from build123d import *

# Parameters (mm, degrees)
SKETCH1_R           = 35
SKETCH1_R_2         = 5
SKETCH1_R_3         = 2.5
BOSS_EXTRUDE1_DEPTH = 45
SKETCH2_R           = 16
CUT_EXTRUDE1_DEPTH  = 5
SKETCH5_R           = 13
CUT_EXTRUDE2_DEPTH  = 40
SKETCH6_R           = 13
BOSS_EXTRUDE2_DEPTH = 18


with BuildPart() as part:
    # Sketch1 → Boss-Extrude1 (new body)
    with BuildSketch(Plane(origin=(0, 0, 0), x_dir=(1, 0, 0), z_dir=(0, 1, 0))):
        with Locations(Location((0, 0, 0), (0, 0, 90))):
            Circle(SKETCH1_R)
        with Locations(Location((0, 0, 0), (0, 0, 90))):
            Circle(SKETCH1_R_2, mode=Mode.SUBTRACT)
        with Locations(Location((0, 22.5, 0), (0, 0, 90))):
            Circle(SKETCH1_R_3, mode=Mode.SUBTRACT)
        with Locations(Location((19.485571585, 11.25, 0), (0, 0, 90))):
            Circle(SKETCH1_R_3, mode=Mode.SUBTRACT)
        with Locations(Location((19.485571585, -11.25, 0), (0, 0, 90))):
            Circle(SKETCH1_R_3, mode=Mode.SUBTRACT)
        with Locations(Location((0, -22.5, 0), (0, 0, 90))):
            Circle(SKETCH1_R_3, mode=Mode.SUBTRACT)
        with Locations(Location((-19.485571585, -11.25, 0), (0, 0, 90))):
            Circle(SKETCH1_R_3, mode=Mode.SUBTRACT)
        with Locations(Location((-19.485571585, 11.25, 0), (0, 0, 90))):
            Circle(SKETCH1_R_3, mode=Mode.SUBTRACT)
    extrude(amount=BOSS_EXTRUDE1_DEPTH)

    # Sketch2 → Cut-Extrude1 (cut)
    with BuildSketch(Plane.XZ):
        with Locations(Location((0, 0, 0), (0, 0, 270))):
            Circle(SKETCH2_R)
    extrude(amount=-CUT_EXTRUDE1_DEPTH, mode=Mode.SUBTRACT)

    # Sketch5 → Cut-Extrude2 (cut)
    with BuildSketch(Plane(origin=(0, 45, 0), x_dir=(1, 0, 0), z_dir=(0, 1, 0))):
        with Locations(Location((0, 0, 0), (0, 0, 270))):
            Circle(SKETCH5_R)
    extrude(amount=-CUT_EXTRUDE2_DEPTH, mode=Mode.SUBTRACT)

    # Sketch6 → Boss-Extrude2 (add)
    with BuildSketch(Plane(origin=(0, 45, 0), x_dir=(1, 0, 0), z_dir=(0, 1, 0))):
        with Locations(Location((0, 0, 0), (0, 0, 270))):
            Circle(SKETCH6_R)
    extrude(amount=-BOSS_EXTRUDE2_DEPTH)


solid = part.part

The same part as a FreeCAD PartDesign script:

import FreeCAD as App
import Part
import Sketcher

V = App.Vector
Q = App.Units.Quantity

doc = App.newDocument("Part")
params = doc.addObject("Spreadsheet::Sheet", "Params")
for row, (alias, value) in enumerate([
    ("sketch1_diameter", "70 mm"),
    ("sketch1_diameter2", "5 mm"),
    ("sketch1_diameter3", "10 mm"),
    ("pad1_length", "45 mm"),
    ("sketch2_diameter", "32 mm"),
    ("pocket1_length", "5 mm"),
    ("sketch3_diameter", "26 mm"),
    ("pocket2_length", "40 mm"),
    ("sketch4_diameter", "26 mm"),
    ("pad2_length", "18 mm"),
], start=1):
    params.set(f"A{row}", alias)
    params.set(f"B{row}", "=" + value)
    params.setAlias(f"B{row}", alias)

body = doc.addObject("PartDesign::Body", "Body")

# Sketch on XZ plane
sketch1 = doc.addObject("Sketcher::SketchObject", "Sketch")
body.addObject(sketch1)
sketch1.AttachmentSupport = (doc.XZ_Plane, [""])
sketch1.MapMode = "FlatFace"
sketch1.addGeometry([
    Part.Circle(V(0, 0, 0), V(0, 0, 1), 35),  # 0
    Part.Circle(V(19.5, 11.2, 0), V(0, 0, 1), 2.5),  # 1
    Part.Circle(V(0, 22.5, 0), V(0, 0, 1), 2.5),  # 2
    Part.Circle(V(19.5, -11.2, 0), V(0, 0, 1), 2.5),  # 3
    Part.Circle(V(-19.5, 11.2, 0), V(0, 0, 1), 2.5),  # 4
    Part.Circle(V(0, 0, 0), V(0, 0, 1), 5),  # 5
    Part.Circle(V(0, -22.5, 0), V(0, 0, 1), 2.5),  # 6
    Part.Circle(V(-19.5, -11.2, 0), V(0, 0, 1), 2.5),  # 7
], False)
sketch1.addConstraint([
    Sketcher.Constraint("Coincident", 0, 3, -1, 1),
    Sketcher.Constraint("Coincident", 5, 3, -1, 1),
    Sketcher.Constraint("Equal", 1, 2),
    Sketcher.Constraint("Equal", 2, 3),
    Sketcher.Constraint("Equal", 3, 4),
    Sketcher.Constraint("Equal", 4, 6),
    Sketcher.Constraint("Equal", 6, 7),
    Sketcher.Constraint("Symmetric", 3, 3, 4, 3, -1, 1),
    Sketcher.Constraint("Symmetric", 2, 3, 6, 3, -1, 1),
    Sketcher.Constraint("Symmetric", 1, 3, 7, 3, -1, 1),
    Sketcher.Constraint("Symmetric", 1, 3, 4, 3, -2),
    Sketcher.Constraint("PointOnObject", 2, 3, -2),
    Sketcher.Constraint("Diameter", 0, Q("70 mm")),
    Sketcher.Constraint("Diameter", 1, Q("5 mm")),
    Sketcher.Constraint("Diameter", 5, Q("10 mm")),
    Sketcher.Constraint("DistanceY", -1, 1, 2, 3, Q("22.5 mm")),
    Sketcher.Constraint("DistanceY", 3, 3, 1, 3, Q("22.5 mm")),
    Sketcher.Constraint("DistanceX", -1, 1, 1, 3, Q("19.485572 mm")),
])
sketch1.setExpression("Constraints[12]", "Params.sketch1_diameter")
sketch1.setExpression("Constraints[13]", "Params.sketch1_diameter2")
sketch1.setExpression("Constraints[14]", "Params.sketch1_diameter3")
pad1 = doc.addObject("PartDesign::Pad", "Pad")
body.addObject(pad1)
pad1.Profile = sketch1
pad1.setExpression("Length", "Params.pad1_length")
pad1.Reversed = True

# Sketch on XZ plane
sketch2 = doc.addObject("Sketcher::SketchObject", "Sketch001")
body.addObject(sketch2)
sketch2.AttachmentSupport = (doc.XZ_Plane, [""])
sketch2.MapMode = "FlatFace"
sketch2.addGeometry(Part.Circle(V(0, 0, 0), V(0, 0, 1), 16), False)
sketch2.addConstraint([
    Sketcher.Constraint("Coincident", 0, 3, -1, 1),
    Sketcher.Constraint("Diameter", 0, Q("32 mm")),
])
sketch2.setExpression("Constraints[1]", "Params.sketch2_diameter")
pocket1 = doc.addObject("PartDesign::Pocket", "Pocket")
body.addObject(pocket1)
pocket1.Profile = sketch2
pocket1.setExpression("Length", "Params.pocket1_length")

# Sketch on XZ plane
sketch3 = doc.addObject("Sketcher::SketchObject", "Sketch002")
body.addObject(sketch3)
sketch3.AttachmentSupport = (doc.XZ_Plane, [""])
sketch3.MapMode = "FlatFace"
sketch3.AttachmentOffset = App.Placement(V(0, 0, -45), App.Rotation())
sketch3.addGeometry(Part.Circle(V(0, 0, 0), V(0, 0, 1), 13), False)
sketch3.addConstraint([
    Sketcher.Constraint("Coincident", 0, 3, -1, 1),
    Sketcher.Constraint("Diameter", 0, Q("26 mm")),
])
sketch3.setExpression("Constraints[1]", "Params.sketch3_diameter")
pocket2 = doc.addObject("PartDesign::Pocket", "Pocket001")
body.addObject(pocket2)
pocket2.Profile = sketch3
pocket2.setExpression("Length", "Params.pocket2_length")
pocket2.Reversed = True

# Sketch on XZ plane
sketch4 = doc.addObject("Sketcher::SketchObject", "Sketch003")
body.addObject(sketch4)
sketch4.AttachmentSupport = (doc.XZ_Plane, [""])
sketch4.MapMode = "FlatFace"
sketch4.AttachmentOffset = App.Placement(V(0, 0, -45), App.Rotation())
sketch4.addGeometry(Part.Circle(V(0, 0, 0), V(0, 0, 1), 13), False)
sketch4.addConstraint([
    Sketcher.Constraint("Coincident", 0, 3, -1, 1),
    Sketcher.Constraint("Diameter", 0, Q("26 mm")),
])
sketch4.setExpression("Constraints[1]", "Params.sketch4_diameter")
pad2 = doc.addObject("PartDesign::Pad", "Pad001")
body.addObject(pad2)
pad2.Profile = sketch4
pad2.setExpression("Length", "Params.pad2_length")

doc.recompute()
